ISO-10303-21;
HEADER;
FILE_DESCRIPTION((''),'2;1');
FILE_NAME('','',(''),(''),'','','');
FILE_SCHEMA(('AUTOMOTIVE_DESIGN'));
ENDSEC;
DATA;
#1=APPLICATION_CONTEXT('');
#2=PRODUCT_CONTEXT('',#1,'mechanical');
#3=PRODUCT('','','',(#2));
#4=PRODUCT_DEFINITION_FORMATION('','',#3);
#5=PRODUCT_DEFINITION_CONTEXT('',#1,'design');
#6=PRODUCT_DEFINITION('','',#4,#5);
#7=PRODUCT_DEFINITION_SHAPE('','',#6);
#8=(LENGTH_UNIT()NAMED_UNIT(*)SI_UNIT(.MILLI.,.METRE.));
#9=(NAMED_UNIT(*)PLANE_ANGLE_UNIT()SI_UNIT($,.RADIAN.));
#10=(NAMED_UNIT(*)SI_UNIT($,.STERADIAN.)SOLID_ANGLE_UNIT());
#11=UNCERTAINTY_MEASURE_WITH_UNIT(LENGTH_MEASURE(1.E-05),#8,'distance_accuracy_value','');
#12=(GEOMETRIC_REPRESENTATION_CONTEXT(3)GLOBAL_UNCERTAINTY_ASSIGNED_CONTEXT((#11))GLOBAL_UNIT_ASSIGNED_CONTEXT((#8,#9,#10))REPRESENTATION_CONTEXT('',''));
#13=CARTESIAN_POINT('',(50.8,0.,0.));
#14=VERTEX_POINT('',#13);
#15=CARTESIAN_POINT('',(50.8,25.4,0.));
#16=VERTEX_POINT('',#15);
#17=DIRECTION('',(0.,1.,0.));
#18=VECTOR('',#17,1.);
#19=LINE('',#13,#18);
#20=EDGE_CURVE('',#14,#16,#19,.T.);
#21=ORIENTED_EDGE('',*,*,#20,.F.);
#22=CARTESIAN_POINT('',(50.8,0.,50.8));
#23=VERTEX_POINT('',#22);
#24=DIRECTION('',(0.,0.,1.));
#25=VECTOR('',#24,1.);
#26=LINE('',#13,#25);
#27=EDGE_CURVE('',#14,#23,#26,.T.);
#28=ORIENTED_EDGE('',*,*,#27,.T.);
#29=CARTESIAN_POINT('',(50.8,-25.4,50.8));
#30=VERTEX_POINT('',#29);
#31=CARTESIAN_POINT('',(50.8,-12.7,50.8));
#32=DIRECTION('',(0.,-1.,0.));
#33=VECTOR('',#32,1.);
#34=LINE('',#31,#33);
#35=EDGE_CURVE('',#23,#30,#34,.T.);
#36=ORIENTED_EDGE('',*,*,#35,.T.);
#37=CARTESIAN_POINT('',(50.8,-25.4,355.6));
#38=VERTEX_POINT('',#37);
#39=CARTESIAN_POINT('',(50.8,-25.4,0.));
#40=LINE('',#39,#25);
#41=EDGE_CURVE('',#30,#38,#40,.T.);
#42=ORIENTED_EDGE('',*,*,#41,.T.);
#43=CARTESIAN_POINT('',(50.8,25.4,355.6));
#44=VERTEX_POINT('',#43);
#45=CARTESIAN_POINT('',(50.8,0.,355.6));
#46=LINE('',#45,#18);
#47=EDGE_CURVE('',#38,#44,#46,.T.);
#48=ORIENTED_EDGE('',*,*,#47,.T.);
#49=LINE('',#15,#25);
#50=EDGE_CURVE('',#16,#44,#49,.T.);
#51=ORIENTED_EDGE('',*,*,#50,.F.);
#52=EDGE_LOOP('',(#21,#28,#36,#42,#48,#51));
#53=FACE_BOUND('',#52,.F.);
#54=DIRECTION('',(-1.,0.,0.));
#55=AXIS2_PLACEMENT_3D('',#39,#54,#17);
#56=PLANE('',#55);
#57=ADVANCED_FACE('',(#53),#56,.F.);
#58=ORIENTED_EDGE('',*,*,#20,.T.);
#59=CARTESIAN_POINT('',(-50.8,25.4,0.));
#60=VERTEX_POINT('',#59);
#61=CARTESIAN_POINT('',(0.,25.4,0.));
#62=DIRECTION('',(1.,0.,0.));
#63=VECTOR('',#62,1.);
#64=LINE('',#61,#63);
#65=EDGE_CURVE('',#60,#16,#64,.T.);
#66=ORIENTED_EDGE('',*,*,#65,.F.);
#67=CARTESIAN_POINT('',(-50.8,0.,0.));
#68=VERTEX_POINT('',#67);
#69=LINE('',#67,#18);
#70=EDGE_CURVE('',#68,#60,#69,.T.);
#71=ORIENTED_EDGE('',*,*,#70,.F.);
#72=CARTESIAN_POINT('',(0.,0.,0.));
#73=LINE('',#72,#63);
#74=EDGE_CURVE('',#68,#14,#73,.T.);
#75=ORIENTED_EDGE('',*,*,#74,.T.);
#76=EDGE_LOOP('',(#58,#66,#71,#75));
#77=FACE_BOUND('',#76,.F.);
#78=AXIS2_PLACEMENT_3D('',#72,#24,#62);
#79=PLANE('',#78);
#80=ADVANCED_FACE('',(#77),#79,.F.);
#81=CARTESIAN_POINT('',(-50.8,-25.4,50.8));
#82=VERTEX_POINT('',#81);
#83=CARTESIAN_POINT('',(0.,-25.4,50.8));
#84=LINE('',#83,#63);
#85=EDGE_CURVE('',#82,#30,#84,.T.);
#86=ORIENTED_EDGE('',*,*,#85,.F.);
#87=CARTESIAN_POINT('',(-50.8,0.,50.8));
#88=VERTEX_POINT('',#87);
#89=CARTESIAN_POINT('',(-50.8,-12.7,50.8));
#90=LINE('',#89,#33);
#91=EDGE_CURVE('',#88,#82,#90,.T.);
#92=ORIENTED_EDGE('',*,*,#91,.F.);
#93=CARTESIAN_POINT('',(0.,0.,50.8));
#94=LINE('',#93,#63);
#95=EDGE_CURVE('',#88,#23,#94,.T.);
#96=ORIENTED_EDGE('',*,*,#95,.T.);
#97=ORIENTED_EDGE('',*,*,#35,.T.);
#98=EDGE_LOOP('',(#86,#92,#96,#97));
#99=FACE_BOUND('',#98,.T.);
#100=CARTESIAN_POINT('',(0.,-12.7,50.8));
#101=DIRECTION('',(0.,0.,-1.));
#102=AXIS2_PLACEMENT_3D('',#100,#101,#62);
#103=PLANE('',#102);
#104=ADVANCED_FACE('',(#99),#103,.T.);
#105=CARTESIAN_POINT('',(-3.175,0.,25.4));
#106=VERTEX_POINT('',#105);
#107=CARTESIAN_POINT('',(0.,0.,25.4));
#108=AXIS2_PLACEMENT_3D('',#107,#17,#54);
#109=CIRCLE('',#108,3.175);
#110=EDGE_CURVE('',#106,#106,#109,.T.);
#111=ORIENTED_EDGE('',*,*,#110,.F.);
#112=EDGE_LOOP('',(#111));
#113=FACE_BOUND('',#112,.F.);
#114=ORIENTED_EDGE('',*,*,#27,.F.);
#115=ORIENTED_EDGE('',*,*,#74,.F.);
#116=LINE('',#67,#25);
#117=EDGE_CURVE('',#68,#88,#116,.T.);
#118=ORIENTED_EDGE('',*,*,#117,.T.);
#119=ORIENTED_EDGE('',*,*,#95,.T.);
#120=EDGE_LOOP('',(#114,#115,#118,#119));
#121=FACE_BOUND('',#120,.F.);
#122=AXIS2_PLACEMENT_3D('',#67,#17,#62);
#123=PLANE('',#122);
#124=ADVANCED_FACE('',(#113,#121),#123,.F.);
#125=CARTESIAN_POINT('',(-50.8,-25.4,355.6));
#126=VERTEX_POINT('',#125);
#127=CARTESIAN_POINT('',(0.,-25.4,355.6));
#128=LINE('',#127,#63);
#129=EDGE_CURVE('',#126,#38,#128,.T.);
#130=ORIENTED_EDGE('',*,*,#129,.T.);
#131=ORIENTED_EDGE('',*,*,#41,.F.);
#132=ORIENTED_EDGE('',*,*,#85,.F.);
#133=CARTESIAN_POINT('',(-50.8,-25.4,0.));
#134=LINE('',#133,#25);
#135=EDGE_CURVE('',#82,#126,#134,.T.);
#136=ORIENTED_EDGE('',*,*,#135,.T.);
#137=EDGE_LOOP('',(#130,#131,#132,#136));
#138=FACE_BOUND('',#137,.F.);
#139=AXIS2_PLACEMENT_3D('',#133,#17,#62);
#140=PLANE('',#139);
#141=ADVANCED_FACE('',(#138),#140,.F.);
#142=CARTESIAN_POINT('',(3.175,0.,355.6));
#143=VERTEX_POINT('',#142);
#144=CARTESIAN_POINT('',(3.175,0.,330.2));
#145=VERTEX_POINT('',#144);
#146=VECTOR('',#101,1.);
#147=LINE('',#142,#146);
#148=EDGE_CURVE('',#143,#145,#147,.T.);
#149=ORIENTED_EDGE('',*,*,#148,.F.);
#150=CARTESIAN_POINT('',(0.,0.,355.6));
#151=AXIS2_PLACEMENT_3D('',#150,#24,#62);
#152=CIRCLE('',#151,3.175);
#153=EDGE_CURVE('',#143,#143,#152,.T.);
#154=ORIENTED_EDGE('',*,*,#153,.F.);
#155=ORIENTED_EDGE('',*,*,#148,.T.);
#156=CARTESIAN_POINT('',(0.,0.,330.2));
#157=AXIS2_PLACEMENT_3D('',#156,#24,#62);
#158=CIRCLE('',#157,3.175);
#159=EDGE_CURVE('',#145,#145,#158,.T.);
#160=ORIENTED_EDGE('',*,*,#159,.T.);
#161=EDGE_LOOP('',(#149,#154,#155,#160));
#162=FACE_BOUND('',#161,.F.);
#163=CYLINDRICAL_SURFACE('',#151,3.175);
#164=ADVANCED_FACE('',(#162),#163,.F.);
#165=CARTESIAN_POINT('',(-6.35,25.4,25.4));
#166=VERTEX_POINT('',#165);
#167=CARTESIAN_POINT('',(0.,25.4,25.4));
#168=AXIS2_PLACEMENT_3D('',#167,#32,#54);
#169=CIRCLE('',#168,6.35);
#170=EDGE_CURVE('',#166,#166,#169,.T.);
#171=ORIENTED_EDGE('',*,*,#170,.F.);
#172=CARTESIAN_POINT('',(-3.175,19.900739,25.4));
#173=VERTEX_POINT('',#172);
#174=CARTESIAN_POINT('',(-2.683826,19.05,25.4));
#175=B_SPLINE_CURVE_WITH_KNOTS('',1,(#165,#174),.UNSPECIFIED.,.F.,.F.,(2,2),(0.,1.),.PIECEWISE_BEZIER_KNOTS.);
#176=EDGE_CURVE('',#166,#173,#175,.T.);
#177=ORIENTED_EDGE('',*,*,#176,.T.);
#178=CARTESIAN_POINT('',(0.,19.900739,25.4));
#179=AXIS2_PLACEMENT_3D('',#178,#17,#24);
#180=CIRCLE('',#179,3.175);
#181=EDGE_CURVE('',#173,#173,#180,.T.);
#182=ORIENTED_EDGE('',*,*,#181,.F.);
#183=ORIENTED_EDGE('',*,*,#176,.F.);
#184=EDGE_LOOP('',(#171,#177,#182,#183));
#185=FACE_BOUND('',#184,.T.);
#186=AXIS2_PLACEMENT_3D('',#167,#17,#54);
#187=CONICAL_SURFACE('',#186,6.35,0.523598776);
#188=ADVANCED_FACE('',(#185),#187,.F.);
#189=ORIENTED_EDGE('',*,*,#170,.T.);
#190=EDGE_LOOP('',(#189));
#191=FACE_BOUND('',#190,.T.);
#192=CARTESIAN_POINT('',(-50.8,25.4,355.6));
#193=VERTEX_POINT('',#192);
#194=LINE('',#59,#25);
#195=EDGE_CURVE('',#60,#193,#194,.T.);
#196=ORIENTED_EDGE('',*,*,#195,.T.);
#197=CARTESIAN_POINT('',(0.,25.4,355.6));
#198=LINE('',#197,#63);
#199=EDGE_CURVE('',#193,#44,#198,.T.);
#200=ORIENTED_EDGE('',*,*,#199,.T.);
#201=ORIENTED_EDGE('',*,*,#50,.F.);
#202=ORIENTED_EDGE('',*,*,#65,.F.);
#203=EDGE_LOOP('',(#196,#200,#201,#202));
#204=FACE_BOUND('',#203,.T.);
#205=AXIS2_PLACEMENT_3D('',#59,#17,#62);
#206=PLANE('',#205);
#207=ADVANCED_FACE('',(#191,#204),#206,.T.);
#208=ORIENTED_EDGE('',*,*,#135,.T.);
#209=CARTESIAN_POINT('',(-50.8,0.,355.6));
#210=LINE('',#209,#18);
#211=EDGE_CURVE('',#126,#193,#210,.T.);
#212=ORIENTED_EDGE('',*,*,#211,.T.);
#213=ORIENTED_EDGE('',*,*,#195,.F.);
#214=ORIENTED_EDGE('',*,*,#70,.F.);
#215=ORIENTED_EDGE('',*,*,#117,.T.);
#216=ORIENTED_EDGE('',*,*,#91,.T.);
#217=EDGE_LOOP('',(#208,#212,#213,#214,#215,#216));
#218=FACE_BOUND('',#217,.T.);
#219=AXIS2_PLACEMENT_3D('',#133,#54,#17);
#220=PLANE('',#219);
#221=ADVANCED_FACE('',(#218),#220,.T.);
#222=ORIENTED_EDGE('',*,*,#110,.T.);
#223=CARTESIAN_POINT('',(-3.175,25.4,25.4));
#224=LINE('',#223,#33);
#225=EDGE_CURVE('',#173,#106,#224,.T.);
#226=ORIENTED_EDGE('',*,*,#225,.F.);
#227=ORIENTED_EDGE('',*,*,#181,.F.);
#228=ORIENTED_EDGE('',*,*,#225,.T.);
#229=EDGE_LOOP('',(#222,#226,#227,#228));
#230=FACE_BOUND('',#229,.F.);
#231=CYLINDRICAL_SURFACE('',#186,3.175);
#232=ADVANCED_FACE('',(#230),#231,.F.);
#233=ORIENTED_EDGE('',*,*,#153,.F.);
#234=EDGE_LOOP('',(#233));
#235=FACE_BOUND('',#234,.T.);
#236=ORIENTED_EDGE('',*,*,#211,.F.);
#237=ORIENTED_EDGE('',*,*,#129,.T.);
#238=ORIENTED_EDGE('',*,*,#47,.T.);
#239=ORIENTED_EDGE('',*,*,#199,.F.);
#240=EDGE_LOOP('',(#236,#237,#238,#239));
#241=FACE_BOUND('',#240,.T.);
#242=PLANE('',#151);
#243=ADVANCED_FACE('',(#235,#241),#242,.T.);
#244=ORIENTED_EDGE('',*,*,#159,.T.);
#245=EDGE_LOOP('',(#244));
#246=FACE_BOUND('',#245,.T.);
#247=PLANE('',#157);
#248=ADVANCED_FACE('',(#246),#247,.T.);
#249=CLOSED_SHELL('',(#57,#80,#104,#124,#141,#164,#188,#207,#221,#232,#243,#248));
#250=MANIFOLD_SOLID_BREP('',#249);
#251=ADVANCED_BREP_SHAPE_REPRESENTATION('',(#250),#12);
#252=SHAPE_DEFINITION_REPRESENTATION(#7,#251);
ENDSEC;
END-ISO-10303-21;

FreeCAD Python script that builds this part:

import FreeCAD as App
import Part
import Sketcher
from FreeCAD import Vector
Q = App.Units.Quantity

doc = App.newDocument("Part")
body = doc.addObject("PartDesign::Body", "Body")

sketch1 = body.newObject("Sketcher::SketchObject", "Sketch")
sketch1.AttachmentSupport = (doc.getObject("XY_Plane"), [""])
sketch1.MapMode = "FlatFace"
sketch1.addGeometry([
    Part.LineSegment(Vector(-51, 25, 0), Vector(-51, -25, 0)),
    Part.LineSegment(Vector(-51, -25, 0), Vector(51, -25, 0)),
    Part.LineSegment(Vector(51, -25, 0), Vector(51, 25, 0)),
    Part.LineSegment(Vector(51, 25, 0), Vector(-51, 25, 0)),
], False)
sketch1.addConstraint([
    Sketcher.Constraint("Coincident", 0, 2, 1, 1),
    Sketcher.Constraint("Coincident", 1, 2, 2, 1),
    Sketcher.Constraint("Coincident", 2, 2, 3, 1),
    Sketcher.Constraint("Coincident", 3, 2, 0, 1),
    Sketcher.Constraint("Vertical", 0),
    Sketcher.Constraint("Horizontal", 1),
    Sketcher.Constraint("Vertical", 2),
    Sketcher.Constraint("Horizontal", 3),
    Sketcher.Constraint("Symmetric", 0, 2, 2, 2, -1, 1),
    Sketcher.Constraint("DistanceX", 1, 1, 1, 2, Q("4 in")),
    Sketcher.Constraint("DistanceY", 0, 2, 0, 1, Q("2 in")),
])
pad1 = body.newObject("PartDesign::Pad", "Pad")
pad1.Profile = sketch1
pad1.Length = Q("14 in")

sketch2 = body.newObject("Sketcher::SketchObject", "Sketch001")
sketch2.AttachmentSupport = (doc.getObject("XY_Plane"), [""])
sketch2.MapMode = "FlatFace"
sketch2.addGeometry([
    Part.LineSegment(Vector(-51, -25, 0), Vector(-51, 0, 0)),
    Part.LineSegment(Vector(-51, 0, 0), Vector(51, 0, 0)),
    Part.LineSegment(Vector(51, 0, 0), Vector(51, -25, 0)),
    Part.LineSegment(Vector(51, -25, 0), Vector(-51, -25, 0)),
], False)
sketch2.addConstraint([
    Sketcher.Constraint("Coincident", 0, 2, 1, 1),
    Sketcher.Constraint("Coincident", 1, 2, 2, 1),
    Sketcher.Constraint("Coincident", 2, 2, 3, 1),
    Sketcher.Constraint("Coincident", 3, 2, 0, 1),
    Sketcher.Constraint("Vertical", 0),
    Sketcher.Constraint("Horizontal", 1),
    Sketcher.Constraint("Vertical", 2),
    Sketcher.Constraint("Horizontal", 3),
    Sketcher.Constraint("Symmetric", 0, 2, 1, 2, -1, 1),
    Sketcher.Constraint("DistanceX", 1, 1, 1, 2, Q("4 in")),
    Sketcher.Constraint("DistanceY", 0, 1, 0, 2, Q("1 in")),
])
pocket1 = body.newObject("PartDesign::Pocket", "Pocket")
pocket1.Profile = sketch2
pocket1.Length = Q("2 in")
pocket1.Reversed = True

sketch3 = body.newObject("Sketcher::SketchObject", "Sketch002")
sketch3.AttachmentSupport = (doc.getObject("XZ_Plane"), [""])
sketch3.MapMode = "FlatFace"
sketch3.AttachmentOffset = App.Placement(Vector(0, 0, -1 * 25.4), App.Rotation())
sketch3.addGeometry(Part.Circle(Vector(0, 25.4, 0), Vector(0, 0, 1), 3.2), False)
sketch3.addConstraint([
    Sketcher.Constraint("PointOnObject", 0, 3, -2),
    Sketcher.Constraint("Diameter", 0, Q("0.25 in")),
    Sketcher.Constraint("DistanceY", -1, 1, 0, 3, Q("1 in")),
])
pocket2 = body.newObject("PartDesign::Pocket", "Pocket001")
pocket2.Profile = sketch3
pocket2.Type = "ThroughAll"
pocket2.Reversed = True

sketch4 = body.newObject("Sketcher::SketchObject", "Sketch003")
sketch4.AttachmentSupport = (doc.getObject("XY_Plane"), [""])
sketch4.MapMode = "FlatFace"
sketch4.AttachmentOffset = App.Placement(Vector(0, 0, 14 * 25.4), App.Rotation())
sketch4.addGeometry(Part.Circle(Vector(0, 0, 0), Vector(0, 0, 1), 3.2), False)
sketch4.addConstraint([
    Sketcher.Constraint("Coincident", 0, 3, -1, 1),
    Sketcher.Constraint("Diameter", 0, Q("0.25 in")),
])
pocket3 = body.newObject("PartDesign::Pocket", "Pocket002")
pocket3.Profile = sketch4
pocket3.Length = Q("1 in")

sketch5 = body.newObject("Sketcher::SketchObject", "Sketch004")
sketch5.AttachmentSupport = (doc.getObject("XZ_Plane"), [""])
sketch5.MapMode = "FlatFace"
sketch5.AttachmentOffset = App.Placement(Vector(0, 0, -1 * 25.4), App.Rotation())
sketch5.addGeometry(Part.Circle(Vector(0, 25, 0), Vector(0, 0, 1), 6), False)
sketch5.addConstraint([
    Sketcher.Constraint("PointOnObject", 0, 3, -2),
    Sketcher.Constraint("Diameter", 0, Q("0.5 in")),
    Sketcher.Constraint("DistanceY", -1, 1, 0, 3, Q("1 in")),
])
pocket4 = body.newObject("PartDesign::Pocket", "Pocket003")
pocket4.Profile = sketch5
pocket4.Length = Q("0.25 in")
pocket4.Reversed = True
pocket4.TaperAngle = -30

doc.recompute()
